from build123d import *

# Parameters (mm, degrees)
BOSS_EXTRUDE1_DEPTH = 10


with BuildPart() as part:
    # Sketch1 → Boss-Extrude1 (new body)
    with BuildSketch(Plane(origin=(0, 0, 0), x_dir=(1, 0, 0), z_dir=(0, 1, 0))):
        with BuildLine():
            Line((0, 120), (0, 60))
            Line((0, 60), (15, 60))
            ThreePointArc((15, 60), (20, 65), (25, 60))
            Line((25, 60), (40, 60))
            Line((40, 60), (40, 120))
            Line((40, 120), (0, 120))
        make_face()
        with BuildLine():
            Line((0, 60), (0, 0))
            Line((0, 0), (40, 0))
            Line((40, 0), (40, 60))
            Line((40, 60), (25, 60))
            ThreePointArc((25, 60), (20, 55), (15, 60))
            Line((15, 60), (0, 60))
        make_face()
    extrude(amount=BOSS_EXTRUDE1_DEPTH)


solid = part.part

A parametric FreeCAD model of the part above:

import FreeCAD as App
import Part
import Sketcher

V = App.Vector
Q = App.Units.Quantity

doc = App.newDocument("Part")
body = doc.addObject("PartDesign::Body", "Body")

sketch1 = doc.addObject("Sketcher::SketchObject", "Sketch")
body.addObject(sketch1)
sketch1.AttachmentSupport = (doc.XZ_Plane, [""])
sketch1.MapMode = "FlatFace"
sketch1.addGeometry(Part.LineSegment(V(0, -120, 0), V(0, 0, 0)), False)
sketch1.addGeometry(Part.LineSegment(V(0, 0, 0), V(40, 0, 0)), False)
sketch1.addGeometry(Part.LineSegment(V(40, 0, 0), V(40, -120, 0)), False)
sketch1.addGeometry(Part.LineSegment(V(40, -120, 0), V(0, -120, 0)), False)
sketch1.addGeometry(Part.Circle(V(20, -60, 0), V(0, 0, 1), 5), False)
sketch1.addConstraint(Sketcher.Constraint("Coincident", 0, 2, 1, 1))
sketch1.addConstraint(Sketcher.Constraint("Coincident", 1, 2, 2, 1))
sketch1.addConstraint(Sketcher.Constraint("Coincident", 2, 2, 3, 1))
sketch1.addConstraint(Sketcher.Constraint("Coincident", 3, 2, 0, 1))
sketch1.addConstraint(Sketcher.Constraint("Vertical", 0))
sketch1.addConstraint(Sketcher.Constraint("Horizontal", 1))
sketch1.addConstraint(Sketcher.Constraint("Vertical", 2))
sketch1.addConstraint(Sketcher.Constraint("Horizontal", 3))
sketch1.addConstraint(Sketcher.Constraint("Coincident", 0, 2, -1, 1))
sketch1.addConstraint(Sketcher.Constraint("Diameter", 4, Q("10 mm")))
sketch1.addConstraint(Sketcher.Constraint("DistanceX", 1, 1, 1, 2, Q("40 mm")))
sketch1.addConstraint(Sketcher.Constraint("DistanceY", 0, 1, 0, 2, Q("120 mm")))
sketch1.addConstraint(Sketcher.Constraint("DistanceX", -1, 1, 4, 3, Q("20 mm")))
sketch1.addConstraint(Sketcher.Constraint("DistanceY", 4, 3, -1, 1, Q("60 mm")))
pad1 = doc.addObject("PartDesign::Pad", "Pad")
body.addObject(pad1)
pad1.Profile = sketch1
pad1.Length = 10
pad1.Reversed = True

doc.recompute()
